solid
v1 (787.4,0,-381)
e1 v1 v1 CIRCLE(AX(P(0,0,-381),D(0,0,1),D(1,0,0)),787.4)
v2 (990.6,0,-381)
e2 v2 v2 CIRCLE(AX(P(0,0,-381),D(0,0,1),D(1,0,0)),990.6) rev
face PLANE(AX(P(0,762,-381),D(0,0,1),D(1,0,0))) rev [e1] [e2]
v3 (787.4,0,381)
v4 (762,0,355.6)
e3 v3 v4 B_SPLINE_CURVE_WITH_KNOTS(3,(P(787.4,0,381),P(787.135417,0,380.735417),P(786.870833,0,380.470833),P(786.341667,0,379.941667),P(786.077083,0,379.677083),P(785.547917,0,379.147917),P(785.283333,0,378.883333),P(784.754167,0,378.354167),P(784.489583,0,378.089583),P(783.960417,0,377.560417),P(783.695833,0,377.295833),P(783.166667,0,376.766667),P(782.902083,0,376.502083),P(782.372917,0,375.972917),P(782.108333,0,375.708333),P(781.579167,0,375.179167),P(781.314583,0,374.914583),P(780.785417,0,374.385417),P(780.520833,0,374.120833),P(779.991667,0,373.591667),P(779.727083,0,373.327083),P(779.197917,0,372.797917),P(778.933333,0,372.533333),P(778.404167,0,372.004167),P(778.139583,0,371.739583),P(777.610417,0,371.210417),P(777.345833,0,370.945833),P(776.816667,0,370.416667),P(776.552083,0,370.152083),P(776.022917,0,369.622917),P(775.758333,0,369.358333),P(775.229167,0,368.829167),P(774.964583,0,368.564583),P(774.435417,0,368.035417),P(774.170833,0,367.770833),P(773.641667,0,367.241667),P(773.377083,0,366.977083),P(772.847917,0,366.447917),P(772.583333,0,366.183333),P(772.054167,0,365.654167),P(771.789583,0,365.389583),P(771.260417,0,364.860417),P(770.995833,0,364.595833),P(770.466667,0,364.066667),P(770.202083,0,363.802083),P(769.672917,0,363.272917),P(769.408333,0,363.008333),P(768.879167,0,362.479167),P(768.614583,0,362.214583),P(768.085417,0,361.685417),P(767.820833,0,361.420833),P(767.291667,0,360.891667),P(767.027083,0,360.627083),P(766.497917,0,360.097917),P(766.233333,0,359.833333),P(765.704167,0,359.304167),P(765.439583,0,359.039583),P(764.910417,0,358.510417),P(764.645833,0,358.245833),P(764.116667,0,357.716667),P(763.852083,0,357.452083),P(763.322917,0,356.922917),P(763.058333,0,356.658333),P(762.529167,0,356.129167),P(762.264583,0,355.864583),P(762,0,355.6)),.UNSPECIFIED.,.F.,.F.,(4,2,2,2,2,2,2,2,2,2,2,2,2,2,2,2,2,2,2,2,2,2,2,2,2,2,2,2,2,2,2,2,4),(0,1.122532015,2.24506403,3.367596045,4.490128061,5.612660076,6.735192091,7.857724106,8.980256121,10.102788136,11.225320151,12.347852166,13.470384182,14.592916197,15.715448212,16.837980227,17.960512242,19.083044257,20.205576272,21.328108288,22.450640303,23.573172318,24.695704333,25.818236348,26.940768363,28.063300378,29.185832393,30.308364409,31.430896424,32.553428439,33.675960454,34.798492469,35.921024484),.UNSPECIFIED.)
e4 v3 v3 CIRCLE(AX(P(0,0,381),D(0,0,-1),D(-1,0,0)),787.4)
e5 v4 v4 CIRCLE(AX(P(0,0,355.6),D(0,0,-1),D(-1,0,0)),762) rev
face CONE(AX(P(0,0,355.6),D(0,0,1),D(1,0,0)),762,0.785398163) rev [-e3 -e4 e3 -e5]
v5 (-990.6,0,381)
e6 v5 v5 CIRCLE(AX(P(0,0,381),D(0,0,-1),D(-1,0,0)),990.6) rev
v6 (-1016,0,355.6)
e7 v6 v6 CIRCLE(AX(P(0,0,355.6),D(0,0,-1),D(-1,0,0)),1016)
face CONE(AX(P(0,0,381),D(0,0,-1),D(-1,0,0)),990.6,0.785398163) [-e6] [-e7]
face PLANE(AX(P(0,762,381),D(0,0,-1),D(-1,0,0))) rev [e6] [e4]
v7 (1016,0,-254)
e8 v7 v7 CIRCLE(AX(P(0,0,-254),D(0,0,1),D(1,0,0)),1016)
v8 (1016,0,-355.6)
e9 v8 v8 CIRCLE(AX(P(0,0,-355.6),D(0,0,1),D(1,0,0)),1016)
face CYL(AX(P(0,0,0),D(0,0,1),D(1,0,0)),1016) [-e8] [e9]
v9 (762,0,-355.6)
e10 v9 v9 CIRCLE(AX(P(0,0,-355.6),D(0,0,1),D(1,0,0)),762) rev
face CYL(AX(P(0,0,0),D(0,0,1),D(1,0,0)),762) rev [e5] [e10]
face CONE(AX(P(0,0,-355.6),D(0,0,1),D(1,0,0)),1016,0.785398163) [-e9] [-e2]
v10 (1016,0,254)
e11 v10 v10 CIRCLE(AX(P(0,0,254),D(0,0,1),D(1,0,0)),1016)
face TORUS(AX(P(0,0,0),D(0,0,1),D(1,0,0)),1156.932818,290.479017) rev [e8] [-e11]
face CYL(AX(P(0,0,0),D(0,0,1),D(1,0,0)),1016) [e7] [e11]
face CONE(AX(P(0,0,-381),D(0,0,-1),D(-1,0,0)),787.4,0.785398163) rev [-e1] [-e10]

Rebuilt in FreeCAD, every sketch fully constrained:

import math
import FreeCAD as App
import Part
import Sketcher
Q = App.Units.Quantity


def edges_at(feature, points):
    """Names of the edges that pass closest to the given points."""
    edges = feature.Shape.Edges
    near = lambda p: min(range(len(edges)), key=lambda i: edges[i].distToShape(Part.Vertex(*p))[0])
    return sorted({f"Edge{near(p) + 1}" for p in points})

doc = App.newDocument("Part")
body = doc.addObject("PartDesign::Body", "Body")

sketch1 = body.newObject("Sketcher::SketchObject", "Sketch")
sketch1.AttachmentSupport = (doc.getObject("YZ_Plane"), [""])
sketch1.MapMode = "FlatFace"
sketch1.addGeometry(Part.LineSegment(App.Vector(762, 381, 0), App.Vector(762, -381, 0)), False)
sketch1.addGeometry(Part.LineSegment(App.Vector(762, -381, 0), App.Vector(1016, -381, 0)), False)
sketch1.addGeometry(Part.LineSegment(App.Vector(1016, -381, 0), App.Vector(1016, -254, 0)), False)
sketch1.addGeometry(Part.ArcOfCircle(Part.Circle(App.Vector(1157, 0, 0), App.Vector(0, 0, 1), 290), math.radians(119), math.radians(241)), False)
sketch1.addGeometry(Part.LineSegment(App.Vector(1016, 254, 0), App.Vector(1016, 381, 0)), False)
sketch1.addGeometry(Part.LineSegment(App.Vector(1016, 381, 0), App.Vector(762, 381, 0)), False)
sketch1.addConstraint(Sketcher.Constraint("Coincident", 0, 2, 1, 1))
sketch1.addConstraint(Sketcher.Constraint("Coincident", 1, 2, 2, 1))
sketch1.addConstraint(Sketcher.Constraint("Coincident", 2, 2, 3, 2))
sketch1.addConstraint(Sketcher.Constraint("Coincident", 3, 1, 4, 1))
sketch1.addConstraint(Sketcher.Constraint("Coincident", 4, 2, 5, 1))
sketch1.addConstraint(Sketcher.Constraint("Coincident", 5, 2, 0, 1))
sketch1.addConstraint(Sketcher.Constraint("Vertical", 0))
sketch1.addConstraint(Sketcher.Constraint("Horizontal", 1))
sketch1.addConstraint(Sketcher.Constraint("Vertical", 2))
sketch1.addConstraint(Sketcher.Constraint("Vertical", 4))
sketch1.addConstraint(Sketcher.Constraint("Horizontal", 5))
sketch1.addConstraint(Sketcher.Constraint("Symmetric", 2, 2, 3, 1, -1))
sketch1.addConstraint(Sketcher.Constraint("Equal", 2, 4))
sketch1.addConstraint(Sketcher.Constraint("DistanceX", 1, 1, 1, 2, Q("10 in")))
sketch1.addConstraint(Sketcher.Constraint("DistanceY", 0, 2, 0, 1, Q("30 in")))
sketch1.addConstraint(Sketcher.Constraint("DistanceY", 2, 1, 2, 2, Q("5 in")))
sketch1.addConstraint(Sketcher.Constraint("DistanceX", -1, 1, 0, 2, Q("30 in")))
sketch1.addConstraint(Sketcher.Constraint("Radius", 3, Q("290.479017 mm")))
revolution = body.newObject("PartDesign::Revolution", "Revolution")
revolution.Profile = sketch1
revolution.ReferenceAxis = (sketch1, ["V_Axis"])
revolution.Angle = 360
doc.recompute()

chamfer = body.newObject("PartDesign::Chamfer", "Chamfer")
chamfer.Base = (revolution, edges_at(revolution, [
    (-1016, 0, -381),
    (-762, 0, -381),
    (-762, 0, 381),
    (-1016, 0, 381),
]))
chamfer.Size = Q("1 in")

doc.recompute()
